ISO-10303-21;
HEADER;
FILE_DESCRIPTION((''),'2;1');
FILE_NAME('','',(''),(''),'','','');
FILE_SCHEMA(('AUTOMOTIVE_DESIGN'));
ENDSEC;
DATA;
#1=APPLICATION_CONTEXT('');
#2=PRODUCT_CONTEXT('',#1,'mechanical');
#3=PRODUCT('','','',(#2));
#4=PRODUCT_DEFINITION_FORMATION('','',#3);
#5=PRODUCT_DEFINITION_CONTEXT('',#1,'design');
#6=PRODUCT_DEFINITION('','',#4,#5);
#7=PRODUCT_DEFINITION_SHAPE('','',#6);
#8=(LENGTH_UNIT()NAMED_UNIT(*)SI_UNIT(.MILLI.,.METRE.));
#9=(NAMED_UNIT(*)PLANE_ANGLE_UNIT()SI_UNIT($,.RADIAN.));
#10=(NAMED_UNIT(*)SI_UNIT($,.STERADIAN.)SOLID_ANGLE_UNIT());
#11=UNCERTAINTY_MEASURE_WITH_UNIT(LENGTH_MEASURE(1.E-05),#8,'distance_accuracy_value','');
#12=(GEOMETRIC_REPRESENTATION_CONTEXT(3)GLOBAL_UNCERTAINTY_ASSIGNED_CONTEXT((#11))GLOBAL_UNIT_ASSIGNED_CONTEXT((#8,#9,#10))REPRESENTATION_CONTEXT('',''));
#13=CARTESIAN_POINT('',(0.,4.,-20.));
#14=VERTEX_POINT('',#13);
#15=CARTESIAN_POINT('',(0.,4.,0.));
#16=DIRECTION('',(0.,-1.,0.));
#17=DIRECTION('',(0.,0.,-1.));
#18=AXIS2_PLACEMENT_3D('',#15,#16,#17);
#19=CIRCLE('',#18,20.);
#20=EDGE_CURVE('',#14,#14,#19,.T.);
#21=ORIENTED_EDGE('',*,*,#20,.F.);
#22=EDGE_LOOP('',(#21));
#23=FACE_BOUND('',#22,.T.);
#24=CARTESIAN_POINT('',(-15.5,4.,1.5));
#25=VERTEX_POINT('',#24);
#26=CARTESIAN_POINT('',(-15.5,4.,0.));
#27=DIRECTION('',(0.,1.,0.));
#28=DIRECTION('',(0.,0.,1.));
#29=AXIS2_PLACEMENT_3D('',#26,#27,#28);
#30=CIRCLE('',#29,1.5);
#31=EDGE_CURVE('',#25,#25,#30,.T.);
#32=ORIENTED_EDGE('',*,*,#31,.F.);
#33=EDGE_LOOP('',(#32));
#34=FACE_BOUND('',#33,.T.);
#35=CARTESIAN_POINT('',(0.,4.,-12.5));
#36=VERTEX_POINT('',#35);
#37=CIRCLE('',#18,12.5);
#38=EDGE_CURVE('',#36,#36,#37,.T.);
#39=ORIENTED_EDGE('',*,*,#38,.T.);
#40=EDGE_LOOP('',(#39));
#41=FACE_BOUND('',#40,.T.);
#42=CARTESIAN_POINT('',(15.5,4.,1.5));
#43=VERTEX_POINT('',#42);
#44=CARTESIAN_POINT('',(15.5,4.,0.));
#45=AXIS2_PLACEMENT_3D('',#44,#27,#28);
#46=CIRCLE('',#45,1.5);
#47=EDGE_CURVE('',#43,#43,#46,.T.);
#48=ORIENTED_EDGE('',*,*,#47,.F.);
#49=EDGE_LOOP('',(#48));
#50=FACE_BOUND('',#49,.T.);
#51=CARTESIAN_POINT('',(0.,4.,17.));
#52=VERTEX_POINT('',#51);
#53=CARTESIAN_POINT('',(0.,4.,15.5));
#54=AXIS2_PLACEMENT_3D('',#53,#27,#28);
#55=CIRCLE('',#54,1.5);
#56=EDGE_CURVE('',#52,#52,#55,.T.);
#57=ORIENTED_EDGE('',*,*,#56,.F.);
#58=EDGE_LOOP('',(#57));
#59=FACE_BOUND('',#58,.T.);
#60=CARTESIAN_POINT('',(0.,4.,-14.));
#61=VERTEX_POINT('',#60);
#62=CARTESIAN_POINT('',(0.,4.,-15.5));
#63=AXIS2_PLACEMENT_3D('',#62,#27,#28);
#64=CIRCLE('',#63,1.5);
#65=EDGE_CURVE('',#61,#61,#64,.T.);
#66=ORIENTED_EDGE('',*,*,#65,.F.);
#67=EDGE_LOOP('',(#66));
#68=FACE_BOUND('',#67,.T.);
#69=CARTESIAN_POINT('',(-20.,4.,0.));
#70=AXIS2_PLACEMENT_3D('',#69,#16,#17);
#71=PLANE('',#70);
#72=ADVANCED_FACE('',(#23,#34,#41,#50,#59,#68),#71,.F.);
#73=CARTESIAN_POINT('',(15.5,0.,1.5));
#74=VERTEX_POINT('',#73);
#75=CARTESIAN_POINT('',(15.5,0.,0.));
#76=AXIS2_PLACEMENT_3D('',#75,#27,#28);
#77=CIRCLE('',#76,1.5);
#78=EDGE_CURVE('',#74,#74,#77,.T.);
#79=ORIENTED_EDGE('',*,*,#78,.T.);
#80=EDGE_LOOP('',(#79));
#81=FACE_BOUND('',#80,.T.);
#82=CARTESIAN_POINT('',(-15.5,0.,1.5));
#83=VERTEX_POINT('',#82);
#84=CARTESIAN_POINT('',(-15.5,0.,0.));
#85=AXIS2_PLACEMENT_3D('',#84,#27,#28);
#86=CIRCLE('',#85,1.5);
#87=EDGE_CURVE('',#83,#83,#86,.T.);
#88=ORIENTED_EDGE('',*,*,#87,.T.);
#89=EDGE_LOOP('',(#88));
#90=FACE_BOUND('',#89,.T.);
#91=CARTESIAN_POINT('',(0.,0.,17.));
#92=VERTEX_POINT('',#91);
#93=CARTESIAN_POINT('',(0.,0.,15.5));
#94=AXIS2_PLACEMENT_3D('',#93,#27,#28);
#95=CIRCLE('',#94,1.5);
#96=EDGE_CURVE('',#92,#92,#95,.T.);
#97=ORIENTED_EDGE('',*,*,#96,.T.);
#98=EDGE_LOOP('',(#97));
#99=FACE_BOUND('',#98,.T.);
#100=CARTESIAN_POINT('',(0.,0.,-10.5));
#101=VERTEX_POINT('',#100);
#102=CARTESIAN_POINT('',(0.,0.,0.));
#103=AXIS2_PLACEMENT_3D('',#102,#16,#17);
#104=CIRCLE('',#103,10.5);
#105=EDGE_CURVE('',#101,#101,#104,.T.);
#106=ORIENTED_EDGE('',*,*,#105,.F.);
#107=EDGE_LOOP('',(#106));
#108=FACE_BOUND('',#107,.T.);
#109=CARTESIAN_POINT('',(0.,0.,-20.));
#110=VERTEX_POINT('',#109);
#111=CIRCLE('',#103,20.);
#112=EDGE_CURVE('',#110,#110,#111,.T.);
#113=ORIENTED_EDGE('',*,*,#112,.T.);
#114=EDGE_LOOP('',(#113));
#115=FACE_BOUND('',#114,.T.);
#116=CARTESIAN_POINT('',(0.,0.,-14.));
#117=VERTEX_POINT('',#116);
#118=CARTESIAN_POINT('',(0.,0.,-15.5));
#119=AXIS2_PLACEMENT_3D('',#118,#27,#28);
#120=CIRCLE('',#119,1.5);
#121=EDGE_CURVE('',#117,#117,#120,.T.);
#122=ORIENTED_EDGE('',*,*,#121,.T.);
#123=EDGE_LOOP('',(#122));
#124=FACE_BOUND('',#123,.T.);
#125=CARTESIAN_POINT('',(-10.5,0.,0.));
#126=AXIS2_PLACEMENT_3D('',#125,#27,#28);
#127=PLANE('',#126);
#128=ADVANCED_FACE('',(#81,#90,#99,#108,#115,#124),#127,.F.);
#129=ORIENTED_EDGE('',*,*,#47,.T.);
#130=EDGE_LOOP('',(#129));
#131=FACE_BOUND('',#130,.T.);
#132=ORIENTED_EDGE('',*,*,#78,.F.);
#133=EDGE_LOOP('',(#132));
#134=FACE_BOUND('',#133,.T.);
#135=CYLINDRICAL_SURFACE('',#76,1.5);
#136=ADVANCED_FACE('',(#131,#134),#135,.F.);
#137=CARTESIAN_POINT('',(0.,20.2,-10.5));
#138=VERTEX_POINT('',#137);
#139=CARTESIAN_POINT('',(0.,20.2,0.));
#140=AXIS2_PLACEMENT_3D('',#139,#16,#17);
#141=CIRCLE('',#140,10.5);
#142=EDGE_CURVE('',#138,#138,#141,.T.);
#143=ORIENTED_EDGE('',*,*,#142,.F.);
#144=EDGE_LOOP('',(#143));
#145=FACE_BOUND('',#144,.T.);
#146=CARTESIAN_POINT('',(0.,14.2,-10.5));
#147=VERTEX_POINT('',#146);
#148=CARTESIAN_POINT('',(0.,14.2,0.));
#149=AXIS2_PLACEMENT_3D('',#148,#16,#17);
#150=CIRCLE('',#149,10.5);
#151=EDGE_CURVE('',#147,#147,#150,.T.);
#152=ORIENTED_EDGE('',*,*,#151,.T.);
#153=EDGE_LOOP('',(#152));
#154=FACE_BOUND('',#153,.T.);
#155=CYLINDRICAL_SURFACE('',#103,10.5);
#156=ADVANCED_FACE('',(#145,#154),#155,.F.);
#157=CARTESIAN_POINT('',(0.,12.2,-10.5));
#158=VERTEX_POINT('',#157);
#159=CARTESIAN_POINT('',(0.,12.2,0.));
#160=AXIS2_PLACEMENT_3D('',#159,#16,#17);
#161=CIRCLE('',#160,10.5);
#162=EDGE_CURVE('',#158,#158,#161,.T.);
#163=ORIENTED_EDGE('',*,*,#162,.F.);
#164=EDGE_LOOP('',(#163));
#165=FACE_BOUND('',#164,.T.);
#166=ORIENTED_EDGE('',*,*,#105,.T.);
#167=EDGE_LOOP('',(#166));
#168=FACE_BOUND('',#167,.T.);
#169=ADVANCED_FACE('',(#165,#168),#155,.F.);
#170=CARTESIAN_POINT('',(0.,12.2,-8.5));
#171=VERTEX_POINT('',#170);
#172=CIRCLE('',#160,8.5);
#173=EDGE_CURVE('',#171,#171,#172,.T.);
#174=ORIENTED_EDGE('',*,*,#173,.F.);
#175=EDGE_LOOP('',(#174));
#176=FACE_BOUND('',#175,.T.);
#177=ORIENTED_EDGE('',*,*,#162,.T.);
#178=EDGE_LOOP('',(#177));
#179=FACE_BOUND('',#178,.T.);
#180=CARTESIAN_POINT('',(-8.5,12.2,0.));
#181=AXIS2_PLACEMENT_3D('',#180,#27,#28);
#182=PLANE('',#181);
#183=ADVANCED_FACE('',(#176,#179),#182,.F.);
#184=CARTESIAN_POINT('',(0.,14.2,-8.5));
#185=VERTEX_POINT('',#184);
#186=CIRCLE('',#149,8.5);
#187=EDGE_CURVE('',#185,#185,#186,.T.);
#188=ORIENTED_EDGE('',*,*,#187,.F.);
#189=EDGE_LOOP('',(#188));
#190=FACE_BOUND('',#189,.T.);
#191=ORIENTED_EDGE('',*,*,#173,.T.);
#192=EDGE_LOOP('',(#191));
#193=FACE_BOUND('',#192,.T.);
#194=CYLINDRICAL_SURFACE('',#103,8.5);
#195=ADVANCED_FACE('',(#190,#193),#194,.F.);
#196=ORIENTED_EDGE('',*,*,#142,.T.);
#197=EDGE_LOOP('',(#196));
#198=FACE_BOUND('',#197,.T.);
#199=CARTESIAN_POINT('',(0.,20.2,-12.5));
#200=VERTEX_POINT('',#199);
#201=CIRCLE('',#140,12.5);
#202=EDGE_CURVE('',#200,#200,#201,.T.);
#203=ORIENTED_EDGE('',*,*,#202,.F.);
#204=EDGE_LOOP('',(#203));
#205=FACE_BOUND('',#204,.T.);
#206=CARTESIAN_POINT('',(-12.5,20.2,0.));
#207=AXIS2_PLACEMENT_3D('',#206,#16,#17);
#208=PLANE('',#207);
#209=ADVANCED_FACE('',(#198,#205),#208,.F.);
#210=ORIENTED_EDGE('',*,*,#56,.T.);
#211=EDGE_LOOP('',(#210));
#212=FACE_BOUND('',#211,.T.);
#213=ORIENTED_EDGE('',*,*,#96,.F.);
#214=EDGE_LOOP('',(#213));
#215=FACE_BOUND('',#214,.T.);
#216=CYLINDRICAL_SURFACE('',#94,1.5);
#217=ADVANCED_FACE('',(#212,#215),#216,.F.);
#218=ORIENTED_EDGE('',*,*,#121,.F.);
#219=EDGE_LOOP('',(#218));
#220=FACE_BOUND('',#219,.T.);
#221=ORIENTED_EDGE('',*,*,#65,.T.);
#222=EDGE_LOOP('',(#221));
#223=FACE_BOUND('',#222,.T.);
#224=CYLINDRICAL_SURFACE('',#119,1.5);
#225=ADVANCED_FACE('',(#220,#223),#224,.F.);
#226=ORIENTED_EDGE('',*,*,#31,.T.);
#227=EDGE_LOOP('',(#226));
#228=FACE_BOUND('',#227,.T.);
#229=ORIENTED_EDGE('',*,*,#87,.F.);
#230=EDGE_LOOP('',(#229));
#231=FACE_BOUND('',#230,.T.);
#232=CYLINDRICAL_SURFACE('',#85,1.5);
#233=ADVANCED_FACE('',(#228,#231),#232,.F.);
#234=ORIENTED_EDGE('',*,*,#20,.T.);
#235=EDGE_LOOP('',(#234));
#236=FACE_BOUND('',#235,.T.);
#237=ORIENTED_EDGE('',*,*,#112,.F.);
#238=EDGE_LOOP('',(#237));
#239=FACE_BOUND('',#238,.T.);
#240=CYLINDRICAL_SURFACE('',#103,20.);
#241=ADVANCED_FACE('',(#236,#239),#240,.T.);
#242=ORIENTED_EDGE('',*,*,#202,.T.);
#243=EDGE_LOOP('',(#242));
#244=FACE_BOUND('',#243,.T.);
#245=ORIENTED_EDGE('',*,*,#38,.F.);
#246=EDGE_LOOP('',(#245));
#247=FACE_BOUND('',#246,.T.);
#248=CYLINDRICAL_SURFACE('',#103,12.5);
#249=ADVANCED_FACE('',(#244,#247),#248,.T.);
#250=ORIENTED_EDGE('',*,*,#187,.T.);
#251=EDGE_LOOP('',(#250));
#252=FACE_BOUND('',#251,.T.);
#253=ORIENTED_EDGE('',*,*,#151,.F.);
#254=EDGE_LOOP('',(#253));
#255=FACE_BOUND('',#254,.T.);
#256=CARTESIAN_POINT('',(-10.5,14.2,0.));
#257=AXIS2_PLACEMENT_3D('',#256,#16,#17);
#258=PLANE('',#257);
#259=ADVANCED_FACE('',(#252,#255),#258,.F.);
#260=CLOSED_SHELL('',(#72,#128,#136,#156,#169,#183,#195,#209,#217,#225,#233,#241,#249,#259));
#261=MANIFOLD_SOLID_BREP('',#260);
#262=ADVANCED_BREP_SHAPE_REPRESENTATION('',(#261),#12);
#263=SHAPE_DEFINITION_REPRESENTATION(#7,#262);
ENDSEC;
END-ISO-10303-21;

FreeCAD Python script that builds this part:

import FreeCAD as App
import Part
import Sketcher
from FreeCAD import Vector


def add_polygon(sketch, points):
    """Adds a closed chain of lines whose ends are joined by coincident constraints."""
    first, n = sketch.GeometryCount, len(points)
    for a, b in zip(points, points[1:] + points[:1]):
        sketch.addGeometry(Part.LineSegment(App.Vector(*a, 0), App.Vector(*b, 0)), False)
    for i in range(n):
        sketch.addConstraint(Sketcher.Constraint("Coincident", first + i, 2, first + (i + 1) % n, 1))

doc = App.newDocument("Part")
body = doc.addObject("PartDesign::Body", "Body")

# Sketch on XY plane
sketch1 = doc.addObject("Sketcher::SketchObject", "Sketch")
body.addObject(sketch1)
sketch1.AttachmentSupport = (doc.XY_Plane, [""])
sketch1.MapMode = "FlatFace"
add_polygon(sketch1, [(-10.5, 14.2), (-10.5, 20.2), (-12.5, 20.2), (-12.5, 4), (-20, 4), (-20, 0), (-10.5, 0), (-10.5, 12.2), (-8.5, 12.2), (-8.5, 14.2)])  # lines 0-9
sketch1.addConstraint([
    Sketcher.Constraint("Vertical", 0),
    Sketcher.Constraint("Horizontal", 1),
    Sketcher.Constraint("Vertical", 2),
    Sketcher.Constraint("Horizontal", 3),
    Sketcher.Constraint("Vertical", 4),
    Sketcher.Constraint("Horizontal", 5),
    Sketcher.Constraint("Vertical", 6),
    Sketcher.Constraint("Horizontal", 7),
    Sketcher.Constraint("Vertical", 8),
    Sketcher.Constraint("Horizontal", 9),
    Sketcher.Constraint("PointOnObject", 4, 2, -1),
    Sketcher.Constraint("Vertical", 0, 2, 5, 2),
    Sketcher.Constraint("Equal", 1, 7),
    Sketcher.Constraint("Equal", 9, 8),
    Sketcher.Constraint("DistanceX", 1, 2, 1, 1, 2.0),
    Sketcher.Constraint("DistanceY", 0, 1, 0, 2, 6.0),
    Sketcher.Constraint("DistanceY", 4, 2, 4, 1, 4.0),
    Sketcher.Constraint("DistanceX", 3, 2, 3, 1, 7.5),
    Sketcher.Constraint("DistanceY", 2, 2, 2, 1, 16.2),
    Sketcher.Constraint("DistanceX", 3, 2, -1, 1, 20.0),
])
revolution = doc.addObject("PartDesign::Revolution", "Revolution")
body.addObject(revolution)
revolution.Profile = sketch1
revolution.ReferenceAxis = (sketch1, ["V_Axis"])
revolution.Angle = 360

# Sketch on XZ plane
sketch2 = doc.addObject("Sketcher::SketchObject", "Sketch001")
body.addObject(sketch2)
sketch2.AttachmentSupport = (doc.XZ_Plane, [""])
sketch2.MapMode = "FlatFace"
sketch2.AttachmentOffset = App.Placement(Vector(0, 0, -4), App.Rotation())
sketch2.addGeometry([
    Part.Circle(Vector(0, -15.5, 0), Vector(0, 0, 1), 1.5),
    Part.Circle(Vector(15.5, 0, 0), Vector(0, 0, 1), 1.5),
    Part.Circle(Vector(0, 15.5, 0), Vector(0, 0, 1), 1.5),
    Part.Circle(Vector(-15.5, 0, 0), Vector(0, 0, 1), 1.5),
], False)
sketch2.addConstraint([
    Sketcher.Constraint("Equal", 0, 1),
    Sketcher.Constraint("Equal", 1, 2),
    Sketcher.Constraint("Equal", 2, 3),
    Sketcher.Constraint("Symmetric", 0, 3, 2, 3, -1, 1),
    Sketcher.Constraint("Symmetric", 1, 3, 3, 3, -1, 1),
    Sketcher.Constraint("PointOnObject", 0, 3, -2),
    Sketcher.Constraint("PointOnObject", 1, 3, -1),
    Sketcher.Constraint("Diameter", 0, 3.0),
    Sketcher.Constraint("DistanceY", 0, 3, 2, 3, 31.0),
    Sketcher.Constraint("DistanceX", 3, 3, 1, 3, 31.0),
])
pocket1 = doc.addObject("PartDesign::Pocket", "Pocket")
body.addObject(pocket1)
pocket1.Profile = sketch2
pocket1.Type = "ThroughAll"
pocket1.Reversed = True

doc.recompute()
